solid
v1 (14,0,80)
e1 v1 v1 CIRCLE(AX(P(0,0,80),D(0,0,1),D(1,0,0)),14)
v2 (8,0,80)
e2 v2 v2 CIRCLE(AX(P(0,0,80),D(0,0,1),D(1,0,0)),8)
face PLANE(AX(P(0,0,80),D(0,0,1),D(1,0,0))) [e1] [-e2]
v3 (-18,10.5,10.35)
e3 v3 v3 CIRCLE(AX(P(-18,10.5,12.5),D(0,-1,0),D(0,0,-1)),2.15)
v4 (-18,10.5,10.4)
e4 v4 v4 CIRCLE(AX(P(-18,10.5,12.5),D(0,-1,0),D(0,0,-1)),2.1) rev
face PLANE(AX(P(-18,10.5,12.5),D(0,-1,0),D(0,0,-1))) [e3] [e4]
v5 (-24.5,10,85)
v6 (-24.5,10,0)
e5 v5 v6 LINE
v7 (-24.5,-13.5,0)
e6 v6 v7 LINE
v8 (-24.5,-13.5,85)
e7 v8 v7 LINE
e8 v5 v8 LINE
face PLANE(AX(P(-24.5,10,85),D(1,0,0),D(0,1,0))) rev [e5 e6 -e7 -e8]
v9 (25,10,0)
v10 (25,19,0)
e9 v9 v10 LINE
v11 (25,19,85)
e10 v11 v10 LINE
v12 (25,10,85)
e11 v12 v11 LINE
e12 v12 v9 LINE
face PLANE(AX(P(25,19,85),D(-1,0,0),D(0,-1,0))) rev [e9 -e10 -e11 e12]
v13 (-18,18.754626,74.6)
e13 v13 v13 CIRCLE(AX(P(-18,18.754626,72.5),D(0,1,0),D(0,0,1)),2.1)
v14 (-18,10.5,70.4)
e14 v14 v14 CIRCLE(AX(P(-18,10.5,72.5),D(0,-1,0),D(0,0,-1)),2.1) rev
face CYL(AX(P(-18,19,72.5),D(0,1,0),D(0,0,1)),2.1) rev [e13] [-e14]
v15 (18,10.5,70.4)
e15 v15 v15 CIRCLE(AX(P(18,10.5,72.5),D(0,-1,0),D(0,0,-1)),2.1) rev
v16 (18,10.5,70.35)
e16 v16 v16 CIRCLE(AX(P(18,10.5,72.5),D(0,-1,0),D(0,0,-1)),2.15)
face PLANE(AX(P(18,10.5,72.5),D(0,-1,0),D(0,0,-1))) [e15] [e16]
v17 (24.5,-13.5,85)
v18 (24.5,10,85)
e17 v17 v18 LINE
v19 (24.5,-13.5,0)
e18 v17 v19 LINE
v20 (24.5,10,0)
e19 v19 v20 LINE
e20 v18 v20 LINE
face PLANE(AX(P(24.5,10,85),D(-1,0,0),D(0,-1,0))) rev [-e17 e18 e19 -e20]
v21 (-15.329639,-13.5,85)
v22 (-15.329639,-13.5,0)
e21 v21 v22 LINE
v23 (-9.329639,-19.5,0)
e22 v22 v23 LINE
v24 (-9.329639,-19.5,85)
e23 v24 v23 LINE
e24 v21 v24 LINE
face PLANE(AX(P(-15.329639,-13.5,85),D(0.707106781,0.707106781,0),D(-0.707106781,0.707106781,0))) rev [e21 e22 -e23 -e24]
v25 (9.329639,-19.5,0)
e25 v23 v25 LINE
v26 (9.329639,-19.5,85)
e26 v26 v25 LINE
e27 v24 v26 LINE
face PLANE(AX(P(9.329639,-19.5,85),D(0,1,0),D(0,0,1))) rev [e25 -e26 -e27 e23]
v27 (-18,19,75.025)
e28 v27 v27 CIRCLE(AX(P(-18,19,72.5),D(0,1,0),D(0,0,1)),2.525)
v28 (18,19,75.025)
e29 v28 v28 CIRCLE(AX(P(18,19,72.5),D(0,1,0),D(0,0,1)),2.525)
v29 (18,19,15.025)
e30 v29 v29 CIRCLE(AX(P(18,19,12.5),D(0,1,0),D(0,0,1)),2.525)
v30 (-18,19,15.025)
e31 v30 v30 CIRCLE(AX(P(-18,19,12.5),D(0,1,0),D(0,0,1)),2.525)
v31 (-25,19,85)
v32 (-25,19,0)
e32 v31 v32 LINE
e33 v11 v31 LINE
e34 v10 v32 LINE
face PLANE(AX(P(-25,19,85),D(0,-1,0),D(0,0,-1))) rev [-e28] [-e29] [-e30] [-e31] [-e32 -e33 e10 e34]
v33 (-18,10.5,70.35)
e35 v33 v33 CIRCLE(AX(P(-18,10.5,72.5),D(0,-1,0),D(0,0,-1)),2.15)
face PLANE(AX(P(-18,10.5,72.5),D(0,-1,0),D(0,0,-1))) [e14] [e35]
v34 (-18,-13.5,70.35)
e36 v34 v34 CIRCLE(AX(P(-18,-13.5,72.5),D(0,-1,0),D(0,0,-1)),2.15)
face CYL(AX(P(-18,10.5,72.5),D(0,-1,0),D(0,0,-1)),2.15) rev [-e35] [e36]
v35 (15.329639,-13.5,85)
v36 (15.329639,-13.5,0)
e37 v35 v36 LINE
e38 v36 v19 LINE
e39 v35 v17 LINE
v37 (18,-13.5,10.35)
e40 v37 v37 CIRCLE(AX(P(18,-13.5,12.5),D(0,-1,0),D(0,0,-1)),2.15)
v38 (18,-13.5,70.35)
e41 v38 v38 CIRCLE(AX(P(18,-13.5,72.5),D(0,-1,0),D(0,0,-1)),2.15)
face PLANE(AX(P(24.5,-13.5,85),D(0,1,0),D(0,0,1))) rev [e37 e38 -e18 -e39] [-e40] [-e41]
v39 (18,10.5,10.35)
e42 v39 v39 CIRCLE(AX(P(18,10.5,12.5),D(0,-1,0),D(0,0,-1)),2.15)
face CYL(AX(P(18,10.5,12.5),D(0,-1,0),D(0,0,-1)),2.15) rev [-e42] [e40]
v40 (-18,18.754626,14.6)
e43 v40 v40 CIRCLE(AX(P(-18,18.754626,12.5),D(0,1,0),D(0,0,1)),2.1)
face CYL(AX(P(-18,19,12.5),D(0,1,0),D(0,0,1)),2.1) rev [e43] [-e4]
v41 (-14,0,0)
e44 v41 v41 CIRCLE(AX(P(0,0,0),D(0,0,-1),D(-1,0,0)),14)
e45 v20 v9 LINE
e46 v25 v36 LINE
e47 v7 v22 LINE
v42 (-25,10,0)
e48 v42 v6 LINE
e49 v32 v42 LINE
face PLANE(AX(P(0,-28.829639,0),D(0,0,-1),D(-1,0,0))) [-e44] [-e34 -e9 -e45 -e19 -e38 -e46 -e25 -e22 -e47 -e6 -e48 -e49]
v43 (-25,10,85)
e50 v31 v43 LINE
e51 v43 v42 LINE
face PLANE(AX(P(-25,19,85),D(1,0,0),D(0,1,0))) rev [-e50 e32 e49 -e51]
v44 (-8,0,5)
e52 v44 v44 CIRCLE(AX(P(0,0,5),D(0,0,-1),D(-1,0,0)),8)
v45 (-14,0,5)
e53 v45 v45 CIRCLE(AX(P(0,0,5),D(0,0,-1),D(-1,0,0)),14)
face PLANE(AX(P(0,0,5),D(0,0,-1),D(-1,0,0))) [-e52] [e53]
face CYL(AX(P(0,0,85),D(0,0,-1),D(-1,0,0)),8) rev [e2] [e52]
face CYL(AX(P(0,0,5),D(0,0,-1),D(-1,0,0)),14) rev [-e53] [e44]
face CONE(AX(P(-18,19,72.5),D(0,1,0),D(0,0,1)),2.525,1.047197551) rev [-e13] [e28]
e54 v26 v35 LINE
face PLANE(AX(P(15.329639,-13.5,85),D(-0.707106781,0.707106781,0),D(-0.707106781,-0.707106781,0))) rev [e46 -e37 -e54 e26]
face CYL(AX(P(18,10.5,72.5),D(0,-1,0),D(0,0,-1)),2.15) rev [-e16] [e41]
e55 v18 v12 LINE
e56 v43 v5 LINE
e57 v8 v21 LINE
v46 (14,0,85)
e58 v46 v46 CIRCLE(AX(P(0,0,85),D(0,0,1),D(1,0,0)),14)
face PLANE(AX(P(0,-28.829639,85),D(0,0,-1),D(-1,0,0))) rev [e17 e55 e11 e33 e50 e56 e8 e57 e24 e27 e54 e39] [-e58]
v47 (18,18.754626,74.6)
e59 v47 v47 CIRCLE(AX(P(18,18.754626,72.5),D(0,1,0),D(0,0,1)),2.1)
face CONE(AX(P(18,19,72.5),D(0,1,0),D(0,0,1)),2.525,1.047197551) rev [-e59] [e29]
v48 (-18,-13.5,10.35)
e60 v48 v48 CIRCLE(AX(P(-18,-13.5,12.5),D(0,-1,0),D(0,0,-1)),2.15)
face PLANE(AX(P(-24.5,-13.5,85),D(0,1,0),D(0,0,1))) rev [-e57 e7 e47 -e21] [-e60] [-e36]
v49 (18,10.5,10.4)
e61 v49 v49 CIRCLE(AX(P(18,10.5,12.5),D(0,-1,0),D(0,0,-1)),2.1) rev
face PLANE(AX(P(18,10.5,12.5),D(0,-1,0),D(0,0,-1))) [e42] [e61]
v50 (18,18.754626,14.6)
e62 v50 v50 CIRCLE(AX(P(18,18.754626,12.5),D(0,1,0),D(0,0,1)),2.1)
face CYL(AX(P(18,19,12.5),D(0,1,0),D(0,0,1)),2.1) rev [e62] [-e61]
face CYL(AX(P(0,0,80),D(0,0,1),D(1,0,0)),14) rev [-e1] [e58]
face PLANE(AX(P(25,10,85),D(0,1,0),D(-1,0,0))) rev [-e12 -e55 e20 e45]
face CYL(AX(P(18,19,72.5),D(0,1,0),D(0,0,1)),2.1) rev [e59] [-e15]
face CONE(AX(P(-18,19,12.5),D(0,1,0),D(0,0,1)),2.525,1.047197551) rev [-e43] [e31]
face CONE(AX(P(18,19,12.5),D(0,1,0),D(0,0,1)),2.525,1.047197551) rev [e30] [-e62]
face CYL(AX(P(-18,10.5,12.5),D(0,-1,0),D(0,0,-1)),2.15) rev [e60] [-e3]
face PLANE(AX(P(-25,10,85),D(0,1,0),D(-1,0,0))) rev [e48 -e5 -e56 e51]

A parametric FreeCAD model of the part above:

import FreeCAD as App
import Part
import Sketcher

V = App.Vector

doc = App.newDocument("Part")
body = doc.addObject("PartDesign::Body", "Body")

# Sketch on XY plane
sketch1 = doc.addObject("Sketcher::SketchObject", "Sketch")
body.addObject(sketch1)
sketch1.AttachmentSupport = (doc.XY_Plane, [""])
sketch1.MapMode = "FlatFace"
sketch1.addGeometry([
    Part.LineSegment(V(25, 19, 0), V(-25, 19, 0)),  # 0
    Part.LineSegment(V(-25, 19, 0), V(-25, 10, 0)),  # 1
    Part.LineSegment(V(-25, 10, 0), V(-24.5, 10, 0)),  # 2
    Part.LineSegment(V(-24.5, 10, 0), V(-24.5, -13.5, 0)),  # 3
    Part.LineSegment(V(-24.5, -13.5, 0), V(-15.3, -13.5, 0)),  # 4
    Part.LineSegment(V(-15.3, -13.5, 0), V(-9.3, -19.5, 0)),  # 5
    Part.LineSegment(V(-9.3, -19.5, 0), V(9.3, -19.5, 0)),  # 6
    Part.LineSegment(V(9.3, -19.5, 0), V(15.3, -13.5, 0)),  # 7
    Part.LineSegment(V(15.3, -13.5, 0), V(24.5, -13.5, 0)),  # 8
    Part.LineSegment(V(24.5, -13.5, 0), V(24.5, 10, 0)),  # 9
    Part.LineSegment(V(24.5, 10, 0), V(25, 10, 0)),  # 10
    Part.LineSegment(V(25, 10, 0), V(25, 19, 0)),  # 11
    Part.Circle(V(0, 0, 0), V(0, 0, 1), 8),  # 12
], False)
sketch1.addConstraint([
    Sketcher.Constraint("Coincident", 0, 2, 1, 1),
    Sketcher.Constraint("Coincident", 1, 2, 2, 1),
    Sketcher.Constraint("Coincident", 2, 2, 3, 1),
    Sketcher.Constraint("Coincident", 3, 2, 4, 1),
    Sketcher.Constraint("Coincident", 4, 2, 5, 1),
    Sketcher.Constraint("Coincident", 5, 2, 6, 1),
    Sketcher.Constraint("Coincident", 6, 2, 7, 1),
    Sketcher.Constraint("Coincident", 7, 2, 8, 1),
    Sketcher.Constraint("Coincident", 8, 2, 9, 1),
    Sketcher.Constraint("Coincident", 9, 2, 10, 1),
    Sketcher.Constraint("Coincident", 10, 2, 11, 1),
    Sketcher.Constraint("Coincident", 11, 2, 0, 1),
    Sketcher.Constraint("Horizontal", 0),
    Sketcher.Constraint("Vertical", 1),
    Sketcher.Constraint("Horizontal", 2),
    Sketcher.Constraint("Vertical", 3),
    Sketcher.Constraint("Horizontal", 4),
    Sketcher.Constraint("Horizontal", 6),
    Sketcher.Constraint("Horizontal", 8),
    Sketcher.Constraint("Vertical", 9),
    Sketcher.Constraint("Horizontal", 10),
    Sketcher.Constraint("Vertical", 11),
    Sketcher.Constraint("Coincident", 12, 3, -1, 1),
    Sketcher.Constraint("Symmetric", 4, 2, 7, 2, -2),
    Sketcher.Constraint("Symmetric", 2, 2, 9, 2, -2),
    Sketcher.Constraint("Perpendicular", 5, 7),
    Sketcher.Constraint("Equal", 2, 10),
    Sketcher.Constraint("Equal", 5, 7),
    Sketcher.Constraint("Diameter", 12, 16.0),
    Sketcher.Constraint("DistanceX", 0, 2, 0, 1, 50.0),
    Sketcher.Constraint("DistanceY", 1, 2, 1, 1, 9.0),
    Sketcher.Constraint("DistanceX", 2, 1, 2, 2, 0.5),
    Sketcher.Constraint("DistanceY", 3, 2, 3, 1, 23.5),
    Sketcher.Constraint("DistanceY", -1, 1, 0, 2, 19.0),
    Sketcher.Constraint("DistanceX", 4, 2, 5, 2, 6.0),
    Sketcher.Constraint("DistanceX", 4, 1, 4, 2, 9.170361),
])
pad1 = doc.addObject("PartDesign::Pad", "Pad")
body.addObject(pad1)
pad1.Profile = sketch1
pad1.Length = 85

# Sketch on XZ plane
sketch2 = doc.addObject("Sketcher::SketchObject", "Sketch001")
body.addObject(sketch2)
sketch2.AttachmentSupport = (doc.XZ_Plane, [""])
sketch2.MapMode = "FlatFace"
sketch2.AttachmentOffset = App.Placement(V(0, 0, -19), App.Rotation())
sketch2.addGeometry([
    Part.Circle(V(-18, 12.5, 0), V(0, 0, 1), 1),
    Part.Circle(V(-18, 72.5, 0), V(0, 0, 1), 1),
    Part.Circle(V(18, 72.5, 0), V(0, 0, 1), 1),
    Part.Circle(V(18, 12.5, 0), V(0, 0, 1), 1),
], False)
sketch2.addConstraint([
    Sketcher.Constraint("Equal", 0, 1),
    Sketcher.Constraint("Equal", 1, 2),
    Sketcher.Constraint("Equal", 2, 3),
    Sketcher.Constraint("Symmetric", 1, 3, 2, 3, -2),
    Sketcher.Constraint("Symmetric", 0, 3, 3, 3, -2),
    Sketcher.Constraint("Vertical", 0, 3, 1, 3),
    Sketcher.Constraint("Diameter", 0, 2.0),
    Sketcher.Constraint("DistanceX", 0, 3, -1, 1, 18.0),
    Sketcher.Constraint("DistanceY", 0, 3, 1, 3, 60.0),
    Sketcher.Constraint("DistanceY", -1, 1, 0, 3, 12.5),
])
pocket1 = doc.addObject("PartDesign::Pocket", "Pocket")
body.addObject(pocket1)
pocket1.Profile = sketch2
pocket1.Type = "ThroughAll"
pocket1.Reversed = True

# Sketch on XZ plane
sketch3 = doc.addObject("Sketcher::SketchObject", "Sketch002")
body.addObject(sketch3)
sketch3.AttachmentSupport = (doc.XZ_Plane, [""])
sketch3.MapMode = "FlatFace"
sketch3.AttachmentOffset = App.Placement(V(0, 0, -19), App.Rotation())
sketch3.addGeometry([
    Part.Circle(V(18, 12.5, 0), V(0, 0, 1), 2.1),
    Part.Circle(V(18, 72.5, 0), V(0, 0, 1), 2.1),
    Part.Circle(V(-18, 72.5, 0), V(0, 0, 1), 2.1),
    Part.Circle(V(-18, 12.5, 0), V(0, 0, 1), 2.1),
], False)
sketch3.addConstraint([
    Sketcher.Constraint("Equal", 0, 1),
    Sketcher.Constraint("Equal", 1, 2),
    Sketcher.Constraint("Equal", 2, 3),
    Sketcher.Constraint("Symmetric", 1, 3, 2, 3, -2),
    Sketcher.Constraint("Symmetric", 0, 3, 3, 3, -2),
    Sketcher.Constraint("Vertical", 0, 3, 1, 3),
    Sketcher.Constraint("Diameter", 0, 4.2),
    Sketcher.Constraint("DistanceX", -1, 1, 0, 3, 18.0),
    Sketcher.Constraint("DistanceY", 0, 3, 1, 3, 60.0),
    Sketcher.Constraint("DistanceY", -1, 1, 0, 3, 12.5),
])
doc.recompute()
hole = doc.addObject("PartDesign::Hole", "Hole")
body.addObject(hole)
hole.Profile = sketch3
hole.ThreadType = "None"
hole.Diameter = 4.2
hole.DepthType = "Dimension"
hole.Depth = 14
hole.DrillPoint = "Angled"
hole.DrillPointAngle = 118
hole.HoleCutType = "Countersink"
hole.HoleCutDiameter = 5.05
hole.HoleCutCountersinkAngle = 120
hole.Reversed = True

# Sketch on XZ plane
sketch4 = doc.addObject("Sketcher::SketchObject", "Sketch003")
body.addObject(sketch4)
sketch4.AttachmentSupport = (doc.XZ_Plane, [""])
sketch4.MapMode = "FlatFace"
sketch4.AttachmentOffset = App.Placement(V(0, 0, 13.5), App.Rotation())
sketch4.addGeometry([
    Part.Circle(V(-18, 72.5, 0), V(0, 0, 1), 2.1),
    Part.Circle(V(18, 72.5, 0), V(0, 0, 1), 2.1),
    Part.Circle(V(18, 12.5, 0), V(0, 0, 1), 2.1),
    Part.Circle(V(-18, 12.5, 0), V(0, 0, 1), 2.1),
], False)
sketch4.addConstraint([
    Sketcher.Constraint("Equal", 0, 1),
    Sketcher.Constraint("Equal", 1, 2),
    Sketcher.Constraint("Equal", 2, 3),
    Sketcher.Constraint("Symmetric", 0, 3, 1, 3, -2),
    Sketcher.Constraint("Symmetric", 2, 3, 3, 3, -2),
    Sketcher.Constraint("Vertical", 1, 3, 2, 3),
    Sketcher.Constraint("Diameter", 0, 4.3),
    Sketcher.Constraint("DistanceX", 0, 3, -1, 1, 18.0),
    Sketcher.Constraint("DistanceY", 2, 3, 1, 3, 60.0),
    Sketcher.Constraint("DistanceY", -1, 1, 0, 3, 72.5),
])
pocket2 = doc.addObject("PartDesign::Pocket", "Pocket001")
body.addObject(pocket2)
pocket2.Profile = sketch4
pocket2.Length = 24

# Sketch on XY plane
sketch5 = doc.addObject("Sketcher::SketchObject", "Sketch004")
body.addObject(sketch5)
sketch5.AttachmentSupport = (doc.XY_Plane, [""])
sketch5.MapMode = "FlatFace"
sketch5.addGeometry(Part.Circle(V(0, 0, 0), V(0, 0, 1), 14), False)
sketch5.addConstraint([
    Sketcher.Constraint("Coincident", 0, 3, -1, 1),
    Sketcher.Constraint("Diameter", 0, 28.0),
])
pocket3 = doc.addObject("PartDesign::Pocket", "Pocket002")
body.addObject(pocket3)
pocket3.Profile = sketch5
pocket3.Length = 5
pocket3.Reversed = True

# Sketch on XY plane
sketch6 = doc.addObject("Sketcher::SketchObject", "Sketch005")
body.addObject(sketch6)
sketch6.AttachmentSupport = (doc.XY_Plane, [""])
sketch6.MapMode = "FlatFace"
sketch6.AttachmentOffset = App.Placement(V(0, 0, 80), App.Rotation())
sketch6.addGeometry(Part.Circle(V(0, 0, 0), V(0, 0, 1), 14), False)
sketch6.addConstraint([
    Sketcher.Constraint("Coincident", 0, 3, -1, 1),
    Sketcher.Constraint("Diameter", 0, 28.0),
])
pocket4 = doc.addObject("PartDesign::Pocket", "Pocket003")
body.addObject(pocket4)
pocket4.Profile = sketch6
pocket4.Length = 5
pocket4.Reversed = True

doc.recompute()
